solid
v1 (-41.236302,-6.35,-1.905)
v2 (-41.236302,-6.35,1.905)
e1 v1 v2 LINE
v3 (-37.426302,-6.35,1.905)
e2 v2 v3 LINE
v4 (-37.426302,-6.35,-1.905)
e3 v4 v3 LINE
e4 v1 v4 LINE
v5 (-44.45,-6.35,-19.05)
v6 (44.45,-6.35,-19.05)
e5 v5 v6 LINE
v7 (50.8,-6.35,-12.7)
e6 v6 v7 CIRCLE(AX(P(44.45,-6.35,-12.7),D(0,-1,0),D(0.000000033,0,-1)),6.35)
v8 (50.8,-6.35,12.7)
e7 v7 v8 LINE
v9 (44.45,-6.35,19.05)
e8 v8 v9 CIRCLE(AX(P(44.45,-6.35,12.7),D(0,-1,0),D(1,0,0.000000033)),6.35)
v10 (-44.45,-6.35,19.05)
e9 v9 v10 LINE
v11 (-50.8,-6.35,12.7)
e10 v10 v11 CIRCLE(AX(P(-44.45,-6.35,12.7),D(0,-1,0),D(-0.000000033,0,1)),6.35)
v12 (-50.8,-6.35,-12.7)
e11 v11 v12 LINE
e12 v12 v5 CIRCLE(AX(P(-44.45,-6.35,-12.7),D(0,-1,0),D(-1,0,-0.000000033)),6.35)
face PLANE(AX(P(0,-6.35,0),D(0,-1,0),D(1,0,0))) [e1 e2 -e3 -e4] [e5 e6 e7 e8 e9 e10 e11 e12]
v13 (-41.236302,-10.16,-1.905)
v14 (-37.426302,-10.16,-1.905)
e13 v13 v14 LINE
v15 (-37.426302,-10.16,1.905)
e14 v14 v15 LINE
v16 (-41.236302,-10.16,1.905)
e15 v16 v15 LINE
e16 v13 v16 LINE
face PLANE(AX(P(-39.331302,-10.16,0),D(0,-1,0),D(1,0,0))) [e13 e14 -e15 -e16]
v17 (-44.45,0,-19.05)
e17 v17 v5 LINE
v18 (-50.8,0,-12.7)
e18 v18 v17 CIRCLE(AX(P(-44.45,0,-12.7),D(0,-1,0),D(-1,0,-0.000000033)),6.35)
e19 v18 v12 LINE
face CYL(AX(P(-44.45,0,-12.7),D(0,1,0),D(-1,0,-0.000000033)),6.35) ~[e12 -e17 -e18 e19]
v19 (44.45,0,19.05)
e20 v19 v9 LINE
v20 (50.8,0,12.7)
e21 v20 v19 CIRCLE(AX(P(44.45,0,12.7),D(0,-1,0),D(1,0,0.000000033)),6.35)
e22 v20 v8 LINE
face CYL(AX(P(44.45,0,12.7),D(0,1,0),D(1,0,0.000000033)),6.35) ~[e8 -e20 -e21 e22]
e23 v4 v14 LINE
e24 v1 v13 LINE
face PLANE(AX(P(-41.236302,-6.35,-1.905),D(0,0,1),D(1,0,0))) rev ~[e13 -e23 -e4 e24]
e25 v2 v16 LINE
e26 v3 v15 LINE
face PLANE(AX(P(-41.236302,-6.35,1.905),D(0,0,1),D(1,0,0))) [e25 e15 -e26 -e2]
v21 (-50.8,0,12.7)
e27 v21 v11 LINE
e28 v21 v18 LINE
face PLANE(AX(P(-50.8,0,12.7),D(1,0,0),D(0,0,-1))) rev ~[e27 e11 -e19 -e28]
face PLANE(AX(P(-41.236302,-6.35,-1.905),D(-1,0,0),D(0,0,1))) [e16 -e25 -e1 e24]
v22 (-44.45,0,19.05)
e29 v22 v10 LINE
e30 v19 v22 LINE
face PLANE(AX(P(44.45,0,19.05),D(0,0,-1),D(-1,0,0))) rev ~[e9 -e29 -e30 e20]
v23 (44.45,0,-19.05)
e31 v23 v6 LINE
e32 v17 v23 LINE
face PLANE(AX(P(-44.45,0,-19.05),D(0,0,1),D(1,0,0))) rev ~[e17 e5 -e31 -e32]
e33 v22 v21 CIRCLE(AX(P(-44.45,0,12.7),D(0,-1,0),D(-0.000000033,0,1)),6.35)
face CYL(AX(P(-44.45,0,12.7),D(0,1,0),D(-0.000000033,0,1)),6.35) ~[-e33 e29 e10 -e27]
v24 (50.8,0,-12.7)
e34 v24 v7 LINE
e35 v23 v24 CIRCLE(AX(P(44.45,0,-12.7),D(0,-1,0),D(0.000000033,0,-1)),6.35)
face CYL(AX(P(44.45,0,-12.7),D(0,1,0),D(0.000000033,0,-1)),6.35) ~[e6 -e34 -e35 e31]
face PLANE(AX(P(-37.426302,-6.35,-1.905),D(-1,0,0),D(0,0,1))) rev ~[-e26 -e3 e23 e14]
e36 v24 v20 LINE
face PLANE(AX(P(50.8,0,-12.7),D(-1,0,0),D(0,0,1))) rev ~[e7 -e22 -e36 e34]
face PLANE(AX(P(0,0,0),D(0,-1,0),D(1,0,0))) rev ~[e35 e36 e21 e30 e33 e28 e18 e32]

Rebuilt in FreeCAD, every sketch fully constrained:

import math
import FreeCAD as App
import Part
import Sketcher

V = App.Vector
Q = App.Units.Quantity


def add_polygon(sketch, points):
    """Adds a closed chain of lines whose ends are joined by coincident constraints."""
    first, n = sketch.GeometryCount, len(points)
    for a, b in zip(points, points[1:] + points[:1]):
        sketch.addGeometry(Part.LineSegment(App.Vector(*a, 0), App.Vector(*b, 0)), False)
    for i in range(n):
        sketch.addConstraint(Sketcher.Constraint("Coincident", first + i, 2, first + (i + 1) % n, 1))

doc = App.newDocument("Part")
params = doc.addObject("Spreadsheet::Sheet", "Params")
for row, (alias, value) in enumerate([
    ("sketch1_height", "1 in"),
    ("sketch1_radius", "0.25 in"),
    ("sketch1_width", "3.5 in"),
    ("pad1_length", "0.25 in"),
    ("sketch2_width", "0.15 in"),
    ("pad2_length", "0.15 in"),
], start=1):
    params.set(f"A{row}", alias)
    params.set(f"B{row}", "=" + value)
    params.setAlias(f"B{row}", alias)

body = doc.addObject("PartDesign::Body", "Body")

# Sketch on XZ plane
sketch1 = body.newObject("Sketcher::SketchObject", "Sketch")
sketch1.AttachmentSupport = (doc.getObject("XZ_Plane"), [""])
sketch1.MapMode = "FlatFace"
sketch1.addGeometry(Part.ArcOfCircle(Part.Circle(V(-44, -13, 0), V(0, 0, 1), 6), math.radians(-180), math.radians(-90)), False)
sketch1.addGeometry(Part.LineSegment(V(-44, -19, 0), V(44, -19, 0)), False)
sketch1.addGeometry(Part.ArcOfCircle(Part.Circle(V(44, -13, 0), V(0, 0, 1), 6), math.radians(-90), math.radians(0)), False)
sketch1.addGeometry(Part.LineSegment(V(51, -13, 0), V(51, 13, 0)), False)
sketch1.addGeometry(Part.ArcOfCircle(Part.Circle(V(44, 13, 0), V(0, 0, 1), 6), math.radians(0), math.radians(90)), False)
sketch1.addGeometry(Part.LineSegment(V(44, 19, 0), V(-44, 19, 0)), False)
sketch1.addGeometry(Part.ArcOfCircle(Part.Circle(V(-44, 13, 0), V(0, 0, 1), 6), math.radians(90), math.radians(180)), False)
sketch1.addGeometry(Part.LineSegment(V(-51, 13, 0), V(-51, -13, 0)), False)
sketch1.addConstraint(Sketcher.Constraint("Tangent", 0, 2, 1, 1))
sketch1.addConstraint(Sketcher.Constraint("Tangent", 1, 2, 2, 1))
sketch1.addConstraint(Sketcher.Constraint("Tangent", 2, 2, 3, 1))
sketch1.addConstraint(Sketcher.Constraint("Tangent", 3, 2, 4, 1))
sketch1.addConstraint(Sketcher.Constraint("Tangent", 4, 2, 5, 1))
sketch1.addConstraint(Sketcher.Constraint("Tangent", 5, 2, 6, 1))
sketch1.addConstraint(Sketcher.Constraint("Tangent", 6, 2, 7, 1))
sketch1.addConstraint(Sketcher.Constraint("Tangent", 7, 2, 0, 1))
sketch1.addConstraint(Sketcher.Constraint("Horizontal", 1))
sketch1.addConstraint(Sketcher.Constraint("Vertical", 3))
sketch1.addConstraint(Sketcher.Constraint("Horizontal", 5))
sketch1.addConstraint(Sketcher.Constraint("Vertical", 7))
sketch1.addConstraint(Sketcher.Constraint("Equal", 0, 2))
sketch1.addConstraint(Sketcher.Constraint("Equal", 2, 4))
sketch1.addConstraint(Sketcher.Constraint("Equal", 4, 6))
sketch1.addConstraint(Sketcher.Constraint("Symmetric", 0, 3, 4, 3, -1, 1))
sketch1.addConstraint(Sketcher.Constraint("DistanceY", 3, 1, 3, 2, Q("1 in")))
sketch1.addConstraint(Sketcher.Constraint("Radius", 0, Q("0.25 in")))
sketch1.addConstraint(Sketcher.Constraint("DistanceX", 1, 1, 1, 2, Q("3.5 in")))
sketch1.setExpression("Constraints[16]", "Params.sketch1_height")
sketch1.setExpression("Constraints[17]", "Params.sketch1_radius")
sketch1.setExpression("Constraints[18]", "Params.sketch1_width")
pad1 = body.newObject("PartDesign::Pad", "Pad")
pad1.Profile = sketch1
pad1.setExpression("Length", "Params.pad1_length")

# Sketch on XZ plane
sketch2 = body.newObject("Sketcher::SketchObject", "Sketch001")
sketch2.AttachmentSupport = (doc.getObject("XZ_Plane"), [""])
sketch2.MapMode = "FlatFace"
sketch2.AttachmentOffset = App.Placement(V(0, 0, 0.25 * 25.4), App.Rotation())
add_polygon(sketch2, [(-41.2, 1.9), (-41.2, -1.9), (-37.4, -1.9), (-37.4, 1.9)])  # lines 0-3
sketch2.addConstraint(Sketcher.Constraint("Vertical", 0))
sketch2.addConstraint(Sketcher.Constraint("Horizontal", 1))
sketch2.addConstraint(Sketcher.Constraint("Vertical", 2))
sketch2.addConstraint(Sketcher.Constraint("Horizontal", 3))
sketch2.addConstraint(Sketcher.Constraint("Equal", 3, 0))
sketch2.addConstraint(Sketcher.Constraint("DistanceX", 1, 1, 1, 2, Q("0.15 in")))
sketch2.addConstraint(Sketcher.Constraint("DistanceY", 0, 2, -1, 1, Q("0.075 in")))
sketch2.addConstraint(Sketcher.Constraint("DistanceX", 0, 2, -1, 1, Q("41.236302 mm")))
sketch2.setExpression("Constraints[9]", "Params.sketch2_width")
pad2 = body.newObject("PartDesign::Pad", "Pad001")
pad2.Profile = sketch2
pad2.setExpression("Length", "Params.pad2_length")

doc.recompute()
